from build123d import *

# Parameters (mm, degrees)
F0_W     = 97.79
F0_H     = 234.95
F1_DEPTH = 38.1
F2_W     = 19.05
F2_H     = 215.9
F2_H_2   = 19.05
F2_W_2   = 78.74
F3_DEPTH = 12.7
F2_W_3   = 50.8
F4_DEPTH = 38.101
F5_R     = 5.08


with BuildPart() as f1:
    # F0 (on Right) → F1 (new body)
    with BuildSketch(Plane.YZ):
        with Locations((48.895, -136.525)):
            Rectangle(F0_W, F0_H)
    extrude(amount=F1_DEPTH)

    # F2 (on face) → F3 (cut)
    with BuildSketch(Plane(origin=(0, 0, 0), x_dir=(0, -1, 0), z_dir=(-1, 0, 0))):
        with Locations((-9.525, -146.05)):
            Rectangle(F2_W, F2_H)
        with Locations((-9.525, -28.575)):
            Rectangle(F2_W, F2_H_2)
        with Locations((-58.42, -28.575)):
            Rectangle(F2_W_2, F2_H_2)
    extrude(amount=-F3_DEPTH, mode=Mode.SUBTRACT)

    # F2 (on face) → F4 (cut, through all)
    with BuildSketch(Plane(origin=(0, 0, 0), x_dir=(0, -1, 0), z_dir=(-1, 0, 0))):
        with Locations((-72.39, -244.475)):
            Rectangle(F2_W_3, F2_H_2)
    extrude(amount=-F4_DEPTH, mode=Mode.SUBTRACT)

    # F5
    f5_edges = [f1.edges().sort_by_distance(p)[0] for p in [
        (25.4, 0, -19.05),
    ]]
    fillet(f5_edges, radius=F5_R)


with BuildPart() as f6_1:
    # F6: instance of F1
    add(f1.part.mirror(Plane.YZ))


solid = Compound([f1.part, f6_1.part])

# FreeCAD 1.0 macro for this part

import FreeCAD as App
import Part
import Sketcher
from FreeCAD import Vector
Q = App.Units.Quantity


def edges_at(feature, points):
    """Names of the edges that pass closest to the given points."""
    edges = feature.Shape.Edges
    near = lambda p: min(range(len(edges)), key=lambda i: edges[i].distToShape(Part.Vertex(*p))[0])
    return sorted({f"Edge{near(p) + 1}" for p in points})


def add_polygon(sketch, points):
    """Adds a closed chain of lines whose ends are joined by coincident constraints."""
    first, n = sketch.GeometryCount, len(points)
    for a, b in zip(points, points[1:] + points[:1]):
        sketch.addGeometry(Part.LineSegment(App.Vector(*a, 0), App.Vector(*b, 0)), False)
    for i in range(n):
        sketch.addConstraint(Sketcher.Constraint("Coincident", first + i, 2, first + (i + 1) % n, 1))

doc = App.newDocument("Part")
body = doc.addObject("PartDesign::Body", "Body")

sketch1 = doc.addObject("Sketcher::SketchObject", "Sketch")
body.addObject(sketch1)
sketch1.AttachmentSupport = (doc.YZ_Plane, [""])
sketch1.MapMode = "FlatFace"
add_polygon(sketch1, [(0, -19), (0, -254), (98, -254), (98, -19)])
sketch1.addConstraint(Sketcher.Constraint("Vertical", 0))
sketch1.addConstraint(Sketcher.Constraint("Horizontal", 1))
sketch1.addConstraint(Sketcher.Constraint("Vertical", 2))
sketch1.addConstraint(Sketcher.Constraint("Horizontal", 3))
sketch1.addConstraint(Sketcher.Constraint("PointOnObject", 0, 2, -2))
sketch1.addConstraint(Sketcher.Constraint("DistanceY", 0, 2, -1, 1, Q("10 in")))
sketch1.addConstraint(Sketcher.Constraint("DistanceX", 1, 1, 1, 2, Q("3.85 in")))
sketch1.addConstraint(Sketcher.Constraint("DistanceY", 0, 2, 0, 1, Q("9.25 in")))
pad1 = doc.addObject("PartDesign::Pad", "Pad")
body.addObject(pad1)
pad1.Profile = sketch1
pad1.Length = Q("1.5 in")

sketch2 = doc.addObject("Sketcher::SketchObject", "Sketch001")
body.addObject(sketch2)
sketch2.AttachmentSupport = (doc.YZ_Plane, [""])
sketch2.MapMode = "FlatFace"
add_polygon(sketch2, [(19, -254), (0, -254), (0, -19), (98, -19), (98, -38), (19, -38)])
sketch2.addConstraint(Sketcher.Constraint("Horizontal", 0))
sketch2.addConstraint(Sketcher.Constraint("Vertical", 1))
sketch2.addConstraint(Sketcher.Constraint("Horizontal", 2))
sketch2.addConstraint(Sketcher.Constraint("Vertical", 3))
sketch2.addConstraint(Sketcher.Constraint("Horizontal", 4))
sketch2.addConstraint(Sketcher.Constraint("Vertical", 5))
sketch2.addConstraint(Sketcher.Constraint("PointOnObject", 0, 2, -2))
sketch2.addConstraint(Sketcher.Constraint("Equal", 0, 3))
sketch2.addConstraint(Sketcher.Constraint("DistanceX", 4, 2, 4, 1, Q("3.1 in")))
sketch2.addConstraint(Sketcher.Constraint("DistanceY", 5, 2, 5, 1, Q("8.5 in")))
sketch2.addConstraint(Sketcher.Constraint("DistanceY", 0, 2, -1, 1, Q("10 in")))
sketch2.addConstraint(Sketcher.Constraint("DistanceX", 0, 2, 0, 1, Q("0.75 in")))
pocket1 = doc.addObject("PartDesign::Pocket", "Pocket")
body.addObject(pocket1)
pocket1.Profile = sketch2
pocket1.Length = Q("0.5 in")
pocket1.Reversed = True

sketch3 = doc.addObject("Sketcher::SketchObject", "Sketch002")
body.addObject(sketch3)
sketch3.AttachmentSupport = (doc.YZ_Plane, [""])
sketch3.MapMode = "FlatFace"
add_polygon(sketch3, [(98, -235), (98, -254), (47, -254), (47, -235)])
sketch3.addConstraint(Sketcher.Constraint("Vertical", 0))
sketch3.addConstraint(Sketcher.Constraint("Horizontal", 1))
sketch3.addConstraint(Sketcher.Constraint("Vertical", 2))
sketch3.addConstraint(Sketcher.Constraint("Horizontal", 3))
sketch3.addConstraint(Sketcher.Constraint("DistanceX", 1, 2, 1, 1, Q("2 in")))
sketch3.addConstraint(Sketcher.Constraint("DistanceY", 0, 2, -1, 1, Q("10 in")))
sketch3.addConstraint(Sketcher.Constraint("DistanceY", 0, 2, 0, 1, Q("0.75 in")))
sketch3.addConstraint(Sketcher.Constraint("DistanceX", -1, 1, 0, 2, Q("3.85 in")))
pocket2 = doc.addObject("PartDesign::Pocket", "Pocket001")
body.addObject(pocket2)
pocket2.Profile = sketch3
pocket2.Type = "ThroughAll"
pocket2.Reversed = True
doc.recompute()

fillet = doc.addObject("PartDesign::Fillet", "Fillet")
body.addObject(fillet)
fillet.Base = (pocket2, edges_at(pocket2, [(25.4, 0, -19.05)]))
fillet.Radius = Q("0.2 in")
body2 = doc.addObject("PartDesign::Body", "Body001")
doc.recompute()

mirroring = doc.addObject("Part::Mirroring", "Mirroring")
mirroring.Source = body
mirroring.Base = Vector(0, 0, 0)
mirroring.Normal = Vector(1, 0, 0)
body2.BaseFeature = mirroring
doc.recompute()
mirroring.Visibility = False

doc.recompute()
